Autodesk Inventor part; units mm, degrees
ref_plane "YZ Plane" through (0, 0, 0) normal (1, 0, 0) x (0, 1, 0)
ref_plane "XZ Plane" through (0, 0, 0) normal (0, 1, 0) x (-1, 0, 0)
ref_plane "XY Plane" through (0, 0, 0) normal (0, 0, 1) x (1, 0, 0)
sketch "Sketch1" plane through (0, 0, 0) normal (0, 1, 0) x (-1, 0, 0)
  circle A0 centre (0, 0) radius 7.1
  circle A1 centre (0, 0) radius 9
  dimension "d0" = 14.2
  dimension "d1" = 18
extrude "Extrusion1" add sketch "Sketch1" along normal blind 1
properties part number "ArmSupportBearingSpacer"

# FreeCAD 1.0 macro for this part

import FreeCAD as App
import Part
import Sketcher
Q = App.Units.Quantity

doc = App.newDocument("Part")
body = doc.addObject("PartDesign::Body", "Body")

sketch1 = body.newObject("Sketcher::SketchObject", "Sketch")
sketch1.AttachmentSupport = (doc.getObject("XZ_Plane"), [""])
sketch1.MapMode = "FlatFace"
sketch1.addGeometry([
    Part.Circle(App.Vector(0, 0, 0), App.Vector(0, 0, 1), 9),
    Part.Circle(App.Vector(0, 0, 0), App.Vector(0, 0, 1), 7),
], False)
sketch1.addConstraint([
    Sketcher.Constraint("Coincident", 0, 3, -1, 1),
    Sketcher.Constraint("Coincident", 1, 3, -1, 1),
    Sketcher.Constraint("Diameter", 0, Q("18 mm")),
    Sketcher.Constraint("Diameter", 1, Q("14.2 mm")),
])
pad1 = body.newObject("PartDesign::Pad", "Pad")
pad1.Profile = sketch1
pad1.Length = 1
pad1.Reversed = True

doc.recompute()
